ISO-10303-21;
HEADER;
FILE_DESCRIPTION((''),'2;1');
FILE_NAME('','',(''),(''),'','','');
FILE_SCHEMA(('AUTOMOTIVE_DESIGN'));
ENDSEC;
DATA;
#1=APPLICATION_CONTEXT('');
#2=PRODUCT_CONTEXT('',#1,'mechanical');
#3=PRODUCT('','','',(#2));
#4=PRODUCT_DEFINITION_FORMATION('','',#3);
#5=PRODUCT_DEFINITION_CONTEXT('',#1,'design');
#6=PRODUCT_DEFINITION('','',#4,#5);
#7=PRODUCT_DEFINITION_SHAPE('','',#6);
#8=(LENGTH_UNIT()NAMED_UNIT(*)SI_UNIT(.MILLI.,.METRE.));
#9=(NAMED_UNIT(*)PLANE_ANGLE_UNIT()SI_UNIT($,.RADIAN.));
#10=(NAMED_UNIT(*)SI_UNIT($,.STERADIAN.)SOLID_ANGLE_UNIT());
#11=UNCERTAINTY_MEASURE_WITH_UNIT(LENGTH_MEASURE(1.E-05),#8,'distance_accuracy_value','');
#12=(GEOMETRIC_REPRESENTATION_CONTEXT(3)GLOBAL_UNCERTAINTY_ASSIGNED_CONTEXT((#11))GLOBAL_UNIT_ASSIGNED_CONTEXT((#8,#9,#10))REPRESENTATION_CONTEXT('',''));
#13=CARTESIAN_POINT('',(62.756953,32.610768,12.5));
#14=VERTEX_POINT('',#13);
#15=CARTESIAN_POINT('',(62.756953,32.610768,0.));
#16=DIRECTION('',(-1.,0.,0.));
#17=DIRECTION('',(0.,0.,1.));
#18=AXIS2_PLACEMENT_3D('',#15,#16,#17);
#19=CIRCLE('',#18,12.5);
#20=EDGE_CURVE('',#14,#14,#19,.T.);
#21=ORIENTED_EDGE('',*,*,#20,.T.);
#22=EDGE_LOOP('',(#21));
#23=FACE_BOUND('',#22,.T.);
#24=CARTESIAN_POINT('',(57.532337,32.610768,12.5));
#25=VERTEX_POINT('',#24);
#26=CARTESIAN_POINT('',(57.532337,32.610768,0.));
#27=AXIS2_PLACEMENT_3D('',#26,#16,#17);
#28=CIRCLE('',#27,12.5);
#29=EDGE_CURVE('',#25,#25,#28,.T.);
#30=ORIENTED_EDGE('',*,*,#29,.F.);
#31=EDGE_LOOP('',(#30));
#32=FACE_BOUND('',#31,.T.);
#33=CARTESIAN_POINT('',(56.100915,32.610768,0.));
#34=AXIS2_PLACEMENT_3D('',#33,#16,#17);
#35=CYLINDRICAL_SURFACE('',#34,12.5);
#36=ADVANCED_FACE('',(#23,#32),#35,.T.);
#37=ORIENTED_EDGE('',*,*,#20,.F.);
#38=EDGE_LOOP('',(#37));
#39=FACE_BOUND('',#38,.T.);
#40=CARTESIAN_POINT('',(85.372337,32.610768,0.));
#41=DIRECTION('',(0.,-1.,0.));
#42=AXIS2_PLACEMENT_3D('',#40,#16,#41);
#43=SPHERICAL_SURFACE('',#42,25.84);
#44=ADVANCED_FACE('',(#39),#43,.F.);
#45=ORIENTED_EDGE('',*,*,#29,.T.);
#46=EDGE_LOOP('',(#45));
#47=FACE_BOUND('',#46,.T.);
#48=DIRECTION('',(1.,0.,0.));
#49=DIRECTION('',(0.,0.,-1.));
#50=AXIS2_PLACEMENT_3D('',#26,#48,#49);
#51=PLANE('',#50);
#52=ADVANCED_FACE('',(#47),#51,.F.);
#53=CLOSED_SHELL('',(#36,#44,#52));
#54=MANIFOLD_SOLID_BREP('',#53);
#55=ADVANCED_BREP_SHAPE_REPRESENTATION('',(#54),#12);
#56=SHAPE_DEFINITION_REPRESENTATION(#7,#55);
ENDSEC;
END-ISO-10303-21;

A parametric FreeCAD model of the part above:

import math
import FreeCAD as App
import Part
import Sketcher

V = App.Vector

doc = App.newDocument("Part")
body = doc.addObject("PartDesign::Body", "Body")

sketch1 = body.newObject("Sketcher::SketchObject", "Sketch")
sketch1.AttachmentSupport = (doc.getObject("XY_Plane"), [""])
sketch1.MapMode = "FlatFace"
sketch1.addGeometry([
    Part.LineSegment(V(57.5, 45.1, 0), V(57.5, 32.6, 0)),
    Part.LineSegment(V(57.5, 32.6, 0), V(59.5, 32.6, 0)),
    Part.ArcOfCircle(Part.Circle(V(85.4, 32.6, 0), V(0, 0, 1), 25.8), math.radians(151), math.radians(180)),
    Part.LineSegment(V(62.8, 45.1, 0), V(57.5, 45.1, 0)),
], False)
sketch1.addGeometry(Part.LineSegment(V(57.5, 32.6, 0), V(85.4, 32.6, 0)), True)
sketch1.addConstraint([
    Sketcher.Constraint("Coincident", 0, 2, 1, 1),
    Sketcher.Constraint("Coincident", 1, 2, 2, 2),
    Sketcher.Constraint("Coincident", 2, 1, 3, 1),
    Sketcher.Constraint("Coincident", 3, 2, 0, 1),
    Sketcher.Constraint("Vertical", 0),
    Sketcher.Constraint("Horizontal", 1),
    Sketcher.Constraint("Horizontal", 3),
    Sketcher.Constraint("Horizontal", 4),
    Sketcher.Constraint("Coincident", 4, 1, 0, 2),
    Sketcher.Constraint("Coincident", 4, 2, 2, 3),
    Sketcher.Constraint("DistanceX", 1, 1, 1, 2, 2.0),
    Sketcher.Constraint("Radius", 2, 25.84),
    Sketcher.Constraint("DistanceY", 0, 2, 0, 1, 12.5),
    Sketcher.Constraint("DistanceY", -1, 1, 2, 3, 32.610768),
    Sketcher.Constraint("DistanceX", -1, 1, 2, 3, 85.372337),
])
revolution = body.newObject("PartDesign::Revolution", "Revolution")
revolution.Profile = sketch1
revolution.ReferenceAxis = (sketch1, ["Axis0"])
revolution.Angle = 360

doc.recompute()
